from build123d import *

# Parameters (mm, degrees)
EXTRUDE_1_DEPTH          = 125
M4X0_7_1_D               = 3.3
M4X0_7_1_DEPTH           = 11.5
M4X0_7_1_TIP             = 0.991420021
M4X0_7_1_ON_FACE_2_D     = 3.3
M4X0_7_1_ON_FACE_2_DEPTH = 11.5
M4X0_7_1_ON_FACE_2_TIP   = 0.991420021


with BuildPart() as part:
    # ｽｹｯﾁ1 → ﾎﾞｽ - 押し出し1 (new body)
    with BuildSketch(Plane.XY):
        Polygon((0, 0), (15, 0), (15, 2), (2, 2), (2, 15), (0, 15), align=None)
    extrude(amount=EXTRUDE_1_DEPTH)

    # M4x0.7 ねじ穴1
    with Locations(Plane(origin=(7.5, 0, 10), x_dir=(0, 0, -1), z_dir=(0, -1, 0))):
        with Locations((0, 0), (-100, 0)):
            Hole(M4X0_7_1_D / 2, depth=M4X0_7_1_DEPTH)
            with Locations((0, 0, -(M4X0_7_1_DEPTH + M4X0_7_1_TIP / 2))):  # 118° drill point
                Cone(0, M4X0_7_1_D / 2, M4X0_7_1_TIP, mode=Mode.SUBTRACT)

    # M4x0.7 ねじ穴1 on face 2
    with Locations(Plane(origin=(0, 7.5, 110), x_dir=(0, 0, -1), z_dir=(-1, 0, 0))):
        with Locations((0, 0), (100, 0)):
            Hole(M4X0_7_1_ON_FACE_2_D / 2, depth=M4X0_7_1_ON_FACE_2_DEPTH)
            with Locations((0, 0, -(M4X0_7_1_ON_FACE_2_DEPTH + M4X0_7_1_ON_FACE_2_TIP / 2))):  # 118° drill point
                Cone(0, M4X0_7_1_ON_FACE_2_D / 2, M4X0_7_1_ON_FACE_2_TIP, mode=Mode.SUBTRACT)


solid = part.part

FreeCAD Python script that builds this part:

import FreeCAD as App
import Part
import Sketcher

V = App.Vector
Q = App.Units.Quantity


def add_polygon(sketch, points):
    """Adds a closed chain of lines whose ends are joined by coincident constraints."""
    first, n = sketch.GeometryCount, len(points)
    for a, b in zip(points, points[1:] + points[:1]):
        sketch.addGeometry(Part.LineSegment(App.Vector(*a, 0), App.Vector(*b, 0)), False)
    for i in range(n):
        sketch.addConstraint(Sketcher.Constraint("Coincident", first + i, 2, first + (i + 1) % n, 1))

doc = App.newDocument("Part")
params = doc.addObject("Spreadsheet::Sheet", "Params")
for row, (alias, value) in enumerate([
    ("sketch1_width", "15 mm"),
    ("sketch1_width2", "13 mm"),
    ("pad1_length", "125 mm"),
    ("sketch2_diameter", "3.3 mm"),
    ("hole_diameter", "3.3 mm"),
    ("hole_depth", "11.5 mm"),
    ("sketch3_diameter", "3.3 mm"),
    ("hole2_diameter", "3.3 mm"),
    ("hole2_depth", "11.5 mm"),
], start=1):
    params.set(f"A{row}", alias)
    params.set(f"B{row}", "=" + value)
    params.setAlias(f"B{row}", alias)

body = doc.addObject("PartDesign::Body", "Body")

sketch1 = body.newObject("Sketcher::SketchObject", "Sketch")
sketch1.AttachmentSupport = (doc.getObject("XY_Plane"), [""])
sketch1.MapMode = "FlatFace"
add_polygon(sketch1, [(0, 0), (15, 0), (15, 2), (2, 2), (2, 15), (0, 15)])
sketch1.addConstraint(Sketcher.Constraint("Horizontal", 0))
sketch1.addConstraint(Sketcher.Constraint("Vertical", 1))
sketch1.addConstraint(Sketcher.Constraint("Horizontal", 2))
sketch1.addConstraint(Sketcher.Constraint("Vertical", 3))
sketch1.addConstraint(Sketcher.Constraint("Horizontal", 4))
sketch1.addConstraint(Sketcher.Constraint("Vertical", 5))
sketch1.addConstraint(Sketcher.Constraint("Coincident", 5, 2, -1, 1))
sketch1.addConstraint(Sketcher.Constraint("Equal", 4, 1))
sketch1.addConstraint(Sketcher.Constraint("Equal", 2, 3))
sketch1.addConstraint(Sketcher.Constraint("DistanceX", 0, 1, 0, 2, Q("15 mm")))
sketch1.addConstraint(Sketcher.Constraint("DistanceX", 2, 2, 2, 1, Q("13 mm")))
sketch1.setExpression("Constraints[15]", "Params.sketch1_width")
sketch1.setExpression("Constraints[16]", "Params.sketch1_width2")
pad1 = body.newObject("PartDesign::Pad", "Pad")
pad1.Profile = sketch1
pad1.setExpression("Length", "Params.pad1_length")

sketch2 = body.newObject("Sketcher::SketchObject", "Sketch001")
sketch2.AttachmentSupport = (doc.getObject("XZ_Plane"), [""])
sketch2.MapMode = "FlatFace"
sketch2.addGeometry(Part.Circle(V(7.5, 10, 0), V(0, 0, 1), 1.65), False)
sketch2.addGeometry(Part.Circle(V(7.5, 110, 0), V(0, 0, 1), 1.65), False)
sketch2.addConstraint(Sketcher.Constraint("Equal", 0, 1))
sketch2.addConstraint(Sketcher.Constraint("Vertical", 0, 3, 1, 3))
sketch2.addConstraint(Sketcher.Constraint("Diameter", 0, Q("3.3 mm")))
sketch2.addConstraint(Sketcher.Constraint("DistanceY", -1, 1, 0, 3, Q("10 mm")))
sketch2.addConstraint(Sketcher.Constraint("DistanceY", -1, 1, 1, 3, Q("110 mm")))
sketch2.addConstraint(Sketcher.Constraint("DistanceX", -1, 1, 0, 3, Q("7.5 mm")))
sketch2.setExpression("Constraints[2]", "Params.sketch2_diameter")
doc.recompute()
hole = body.newObject("PartDesign::Hole", "Hole")
hole.Profile = sketch2
hole.ThreadType = "None"
hole.setExpression("Diameter", "Params.hole_diameter")
hole.DepthType = "Dimension"
hole.setExpression("Depth", "Params.hole_depth")
hole.DrillPoint = "Angled"
hole.DrillPointAngle = 118

sketch3 = body.newObject("Sketcher::SketchObject", "Sketch002")
sketch3.AttachmentSupport = (doc.getObject("YZ_Plane"), [""])
sketch3.MapMode = "FlatFace"
sketch3.addGeometry(Part.Circle(V(7.5, 110, 0), V(0, 0, 1), 1.65), False)
sketch3.addGeometry(Part.Circle(V(7.5, 10, 0), V(0, 0, 1), 1.65), False)
sketch3.addConstraint(Sketcher.Constraint("Equal", 0, 1))
sketch3.addConstraint(Sketcher.Constraint("Vertical", 0, 3, 1, 3))
sketch3.addConstraint(Sketcher.Constraint("Diameter", 0, Q("3.3 mm")))
sketch3.addConstraint(Sketcher.Constraint("DistanceY", -1, 1, 0, 3, Q("110 mm")))
sketch3.addConstraint(Sketcher.Constraint("DistanceY", -1, 1, 1, 3, Q("10 mm")))
sketch3.addConstraint(Sketcher.Constraint("DistanceX", -1, 1, 0, 3, Q("7.5 mm")))
sketch3.setExpression("Constraints[2]", "Params.sketch3_diameter")
doc.recompute()
hole2 = body.newObject("PartDesign::Hole", "Hole001")
hole2.Profile = sketch3
hole2.ThreadType = "None"
hole2.setExpression("Diameter", "Params.hole2_diameter")
hole2.DepthType = "Dimension"
hole2.setExpression("Depth", "Params.hole2_depth")
hole2.DrillPoint = "Angled"
hole2.DrillPointAngle = 118
hole2.Reversed = True

doc.recompute()
